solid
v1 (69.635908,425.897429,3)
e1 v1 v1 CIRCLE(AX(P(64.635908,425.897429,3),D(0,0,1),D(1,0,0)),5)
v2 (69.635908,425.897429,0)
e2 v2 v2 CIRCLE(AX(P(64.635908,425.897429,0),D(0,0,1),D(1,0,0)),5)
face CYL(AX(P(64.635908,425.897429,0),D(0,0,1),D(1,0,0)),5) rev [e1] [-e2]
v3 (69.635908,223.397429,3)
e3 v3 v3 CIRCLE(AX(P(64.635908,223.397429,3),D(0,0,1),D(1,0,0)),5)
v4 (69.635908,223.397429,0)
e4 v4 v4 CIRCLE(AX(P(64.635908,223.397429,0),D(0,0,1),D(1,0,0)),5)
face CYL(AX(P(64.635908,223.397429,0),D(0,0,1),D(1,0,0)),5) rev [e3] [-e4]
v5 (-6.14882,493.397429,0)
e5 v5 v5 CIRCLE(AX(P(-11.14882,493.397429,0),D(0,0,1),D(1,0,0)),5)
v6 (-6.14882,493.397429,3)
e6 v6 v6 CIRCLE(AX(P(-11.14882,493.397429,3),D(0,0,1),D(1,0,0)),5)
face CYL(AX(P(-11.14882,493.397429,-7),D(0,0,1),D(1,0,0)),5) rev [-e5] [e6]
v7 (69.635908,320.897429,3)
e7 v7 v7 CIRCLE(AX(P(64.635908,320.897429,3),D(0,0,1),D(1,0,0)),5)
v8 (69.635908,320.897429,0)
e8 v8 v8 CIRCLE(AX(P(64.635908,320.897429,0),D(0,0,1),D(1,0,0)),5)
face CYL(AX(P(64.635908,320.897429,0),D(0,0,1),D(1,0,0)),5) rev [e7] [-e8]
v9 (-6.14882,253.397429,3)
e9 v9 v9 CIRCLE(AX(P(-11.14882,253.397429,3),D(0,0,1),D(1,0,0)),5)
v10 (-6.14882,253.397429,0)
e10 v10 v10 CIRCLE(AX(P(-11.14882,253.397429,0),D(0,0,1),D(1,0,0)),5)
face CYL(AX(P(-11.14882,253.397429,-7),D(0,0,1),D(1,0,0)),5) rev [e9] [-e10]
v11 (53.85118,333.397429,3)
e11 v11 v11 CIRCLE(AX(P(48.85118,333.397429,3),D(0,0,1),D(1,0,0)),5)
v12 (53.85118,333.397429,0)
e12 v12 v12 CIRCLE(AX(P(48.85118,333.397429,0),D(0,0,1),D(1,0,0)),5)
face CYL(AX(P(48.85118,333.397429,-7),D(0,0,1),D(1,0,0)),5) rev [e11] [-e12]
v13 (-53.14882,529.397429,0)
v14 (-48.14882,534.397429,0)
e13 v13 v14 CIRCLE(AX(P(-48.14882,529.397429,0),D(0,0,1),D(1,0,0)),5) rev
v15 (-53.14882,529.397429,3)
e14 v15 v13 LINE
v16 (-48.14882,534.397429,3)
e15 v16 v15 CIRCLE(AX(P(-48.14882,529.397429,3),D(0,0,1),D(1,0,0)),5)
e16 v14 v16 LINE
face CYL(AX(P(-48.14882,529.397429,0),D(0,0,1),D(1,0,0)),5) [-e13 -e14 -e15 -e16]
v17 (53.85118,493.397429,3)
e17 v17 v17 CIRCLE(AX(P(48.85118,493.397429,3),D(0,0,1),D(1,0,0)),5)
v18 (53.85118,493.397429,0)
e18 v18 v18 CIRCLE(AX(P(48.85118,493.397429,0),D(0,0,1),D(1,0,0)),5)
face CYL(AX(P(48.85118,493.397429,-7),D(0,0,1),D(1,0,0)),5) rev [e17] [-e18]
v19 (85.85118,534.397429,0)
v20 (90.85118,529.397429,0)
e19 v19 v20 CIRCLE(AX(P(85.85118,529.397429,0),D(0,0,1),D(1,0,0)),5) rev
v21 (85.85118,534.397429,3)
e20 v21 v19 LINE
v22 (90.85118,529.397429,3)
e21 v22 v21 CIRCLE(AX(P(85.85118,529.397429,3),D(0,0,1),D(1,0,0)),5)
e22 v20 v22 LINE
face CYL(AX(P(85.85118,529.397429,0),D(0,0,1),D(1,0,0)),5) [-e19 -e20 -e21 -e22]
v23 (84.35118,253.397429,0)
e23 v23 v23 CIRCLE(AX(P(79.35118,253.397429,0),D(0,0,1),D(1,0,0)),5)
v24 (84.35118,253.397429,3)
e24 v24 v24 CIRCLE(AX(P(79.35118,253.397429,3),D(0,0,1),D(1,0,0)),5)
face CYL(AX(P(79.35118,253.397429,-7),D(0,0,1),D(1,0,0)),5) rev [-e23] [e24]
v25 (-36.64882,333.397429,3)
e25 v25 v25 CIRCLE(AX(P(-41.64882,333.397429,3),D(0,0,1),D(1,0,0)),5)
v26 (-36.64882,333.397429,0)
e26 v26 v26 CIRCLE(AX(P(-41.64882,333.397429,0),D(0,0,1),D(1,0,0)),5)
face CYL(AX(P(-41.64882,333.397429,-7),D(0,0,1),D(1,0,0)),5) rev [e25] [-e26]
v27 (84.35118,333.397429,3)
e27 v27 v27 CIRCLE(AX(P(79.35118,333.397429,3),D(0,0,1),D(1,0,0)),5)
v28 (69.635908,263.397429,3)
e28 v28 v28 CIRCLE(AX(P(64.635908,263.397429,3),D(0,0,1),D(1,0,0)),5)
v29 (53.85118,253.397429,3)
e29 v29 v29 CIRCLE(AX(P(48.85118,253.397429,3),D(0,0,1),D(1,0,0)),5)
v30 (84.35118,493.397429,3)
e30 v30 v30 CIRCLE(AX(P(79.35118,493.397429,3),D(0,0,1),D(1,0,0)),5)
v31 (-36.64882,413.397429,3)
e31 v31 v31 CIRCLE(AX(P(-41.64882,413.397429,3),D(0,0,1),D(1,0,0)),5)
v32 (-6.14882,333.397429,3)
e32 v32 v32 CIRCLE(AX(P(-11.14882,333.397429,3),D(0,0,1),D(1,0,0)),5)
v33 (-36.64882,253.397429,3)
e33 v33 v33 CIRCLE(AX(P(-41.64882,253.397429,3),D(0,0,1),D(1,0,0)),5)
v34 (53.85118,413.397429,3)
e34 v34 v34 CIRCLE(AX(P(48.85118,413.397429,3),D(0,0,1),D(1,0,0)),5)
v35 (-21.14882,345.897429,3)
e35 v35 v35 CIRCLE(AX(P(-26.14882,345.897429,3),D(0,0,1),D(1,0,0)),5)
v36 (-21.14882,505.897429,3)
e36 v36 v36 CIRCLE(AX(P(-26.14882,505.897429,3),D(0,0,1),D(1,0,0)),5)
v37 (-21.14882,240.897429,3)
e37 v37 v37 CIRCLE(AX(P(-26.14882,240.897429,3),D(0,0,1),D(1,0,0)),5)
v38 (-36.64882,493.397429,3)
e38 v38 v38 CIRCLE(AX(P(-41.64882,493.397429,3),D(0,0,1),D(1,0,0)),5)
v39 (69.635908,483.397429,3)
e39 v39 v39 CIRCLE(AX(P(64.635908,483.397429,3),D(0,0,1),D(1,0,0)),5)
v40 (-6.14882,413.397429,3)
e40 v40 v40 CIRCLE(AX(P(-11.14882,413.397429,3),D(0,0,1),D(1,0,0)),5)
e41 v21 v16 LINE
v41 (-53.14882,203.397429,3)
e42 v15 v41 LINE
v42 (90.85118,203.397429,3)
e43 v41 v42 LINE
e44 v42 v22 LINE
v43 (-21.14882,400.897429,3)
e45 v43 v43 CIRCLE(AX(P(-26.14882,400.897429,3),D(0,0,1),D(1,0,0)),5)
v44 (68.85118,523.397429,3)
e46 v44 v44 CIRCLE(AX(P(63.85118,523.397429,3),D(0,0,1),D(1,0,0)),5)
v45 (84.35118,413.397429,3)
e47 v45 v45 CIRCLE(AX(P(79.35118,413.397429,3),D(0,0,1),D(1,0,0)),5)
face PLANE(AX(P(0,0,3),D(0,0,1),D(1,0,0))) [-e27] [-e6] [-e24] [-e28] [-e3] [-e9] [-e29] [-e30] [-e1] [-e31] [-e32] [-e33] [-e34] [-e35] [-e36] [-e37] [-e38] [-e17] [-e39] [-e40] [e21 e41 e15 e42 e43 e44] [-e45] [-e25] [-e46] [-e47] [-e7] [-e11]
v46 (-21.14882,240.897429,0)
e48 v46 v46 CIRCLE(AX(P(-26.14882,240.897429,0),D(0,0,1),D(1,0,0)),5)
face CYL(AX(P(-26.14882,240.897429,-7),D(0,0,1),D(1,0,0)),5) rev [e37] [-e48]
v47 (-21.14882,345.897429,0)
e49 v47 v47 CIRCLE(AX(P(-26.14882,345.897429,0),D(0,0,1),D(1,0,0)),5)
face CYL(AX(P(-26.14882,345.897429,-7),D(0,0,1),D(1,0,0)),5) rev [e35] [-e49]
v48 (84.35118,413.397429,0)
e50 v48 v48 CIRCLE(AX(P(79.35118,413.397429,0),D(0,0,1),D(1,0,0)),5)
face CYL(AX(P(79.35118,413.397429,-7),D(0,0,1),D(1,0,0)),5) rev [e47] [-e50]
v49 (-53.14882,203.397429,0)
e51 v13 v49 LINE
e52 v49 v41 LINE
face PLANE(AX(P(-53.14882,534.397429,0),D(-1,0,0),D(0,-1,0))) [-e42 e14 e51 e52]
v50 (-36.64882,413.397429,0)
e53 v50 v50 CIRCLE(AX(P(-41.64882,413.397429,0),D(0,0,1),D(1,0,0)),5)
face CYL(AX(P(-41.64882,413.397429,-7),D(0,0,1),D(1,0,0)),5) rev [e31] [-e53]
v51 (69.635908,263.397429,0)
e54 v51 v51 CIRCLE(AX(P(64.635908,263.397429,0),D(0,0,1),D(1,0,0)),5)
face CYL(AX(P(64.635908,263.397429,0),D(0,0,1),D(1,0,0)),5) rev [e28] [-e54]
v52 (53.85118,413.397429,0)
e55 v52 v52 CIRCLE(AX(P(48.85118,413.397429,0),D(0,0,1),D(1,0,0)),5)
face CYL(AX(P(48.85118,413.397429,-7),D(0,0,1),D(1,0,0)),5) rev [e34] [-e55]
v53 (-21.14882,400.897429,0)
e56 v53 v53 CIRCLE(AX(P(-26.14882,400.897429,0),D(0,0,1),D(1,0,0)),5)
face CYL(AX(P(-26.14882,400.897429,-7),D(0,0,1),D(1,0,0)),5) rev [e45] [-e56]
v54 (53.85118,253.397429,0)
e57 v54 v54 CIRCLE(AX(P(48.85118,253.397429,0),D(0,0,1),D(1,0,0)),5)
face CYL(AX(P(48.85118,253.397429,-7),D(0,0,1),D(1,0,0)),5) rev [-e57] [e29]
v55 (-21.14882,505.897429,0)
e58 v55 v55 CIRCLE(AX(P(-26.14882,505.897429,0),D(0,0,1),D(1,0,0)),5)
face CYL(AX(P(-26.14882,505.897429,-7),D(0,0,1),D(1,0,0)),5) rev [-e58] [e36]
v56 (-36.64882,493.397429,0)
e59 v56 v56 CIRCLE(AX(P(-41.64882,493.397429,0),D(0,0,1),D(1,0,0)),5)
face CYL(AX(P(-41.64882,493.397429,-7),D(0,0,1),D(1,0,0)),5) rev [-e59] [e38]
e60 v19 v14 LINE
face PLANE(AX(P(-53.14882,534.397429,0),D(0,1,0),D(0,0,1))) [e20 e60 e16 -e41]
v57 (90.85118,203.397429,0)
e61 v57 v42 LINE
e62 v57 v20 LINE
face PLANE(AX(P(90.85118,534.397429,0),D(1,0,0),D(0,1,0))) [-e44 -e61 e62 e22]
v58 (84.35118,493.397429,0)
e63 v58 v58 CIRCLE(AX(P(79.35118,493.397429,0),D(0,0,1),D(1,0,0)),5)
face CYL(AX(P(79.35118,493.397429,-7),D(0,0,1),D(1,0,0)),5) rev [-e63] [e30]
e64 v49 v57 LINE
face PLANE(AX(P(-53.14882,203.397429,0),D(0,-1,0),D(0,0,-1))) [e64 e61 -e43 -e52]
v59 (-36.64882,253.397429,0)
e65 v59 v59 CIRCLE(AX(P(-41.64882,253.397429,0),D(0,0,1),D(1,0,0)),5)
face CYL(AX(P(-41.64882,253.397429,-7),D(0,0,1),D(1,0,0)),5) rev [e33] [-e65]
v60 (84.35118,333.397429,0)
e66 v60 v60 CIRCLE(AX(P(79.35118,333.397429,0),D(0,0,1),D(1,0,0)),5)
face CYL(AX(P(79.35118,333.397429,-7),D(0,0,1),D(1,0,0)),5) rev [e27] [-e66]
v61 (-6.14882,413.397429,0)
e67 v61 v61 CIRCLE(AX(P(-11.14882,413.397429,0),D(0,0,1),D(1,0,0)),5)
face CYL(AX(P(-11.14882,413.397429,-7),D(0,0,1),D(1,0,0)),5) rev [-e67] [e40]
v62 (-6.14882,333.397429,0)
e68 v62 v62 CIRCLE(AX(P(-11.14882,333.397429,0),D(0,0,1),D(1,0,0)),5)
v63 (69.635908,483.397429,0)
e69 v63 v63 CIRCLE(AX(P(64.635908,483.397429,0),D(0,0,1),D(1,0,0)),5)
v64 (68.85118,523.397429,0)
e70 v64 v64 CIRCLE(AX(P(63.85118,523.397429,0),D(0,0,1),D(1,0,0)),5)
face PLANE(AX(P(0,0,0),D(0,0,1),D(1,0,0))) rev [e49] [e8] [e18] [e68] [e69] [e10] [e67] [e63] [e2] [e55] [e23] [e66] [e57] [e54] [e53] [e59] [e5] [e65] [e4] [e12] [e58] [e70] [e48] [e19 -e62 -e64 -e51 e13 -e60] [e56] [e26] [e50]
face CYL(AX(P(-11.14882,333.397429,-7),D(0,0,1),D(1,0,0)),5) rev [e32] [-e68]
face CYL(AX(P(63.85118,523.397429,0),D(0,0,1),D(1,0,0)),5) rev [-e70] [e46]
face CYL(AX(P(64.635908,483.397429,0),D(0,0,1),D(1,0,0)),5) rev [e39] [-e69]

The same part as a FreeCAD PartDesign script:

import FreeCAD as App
import Part
import Sketcher

V = App.Vector


def edges_at(feature, points):
    """Names of the edges that pass closest to the given points."""
    edges = feature.Shape.Edges
    near = lambda p: min(range(len(edges)), key=lambda i: edges[i].distToShape(Part.Vertex(*p))[0])
    return sorted({f"Edge{near(p) + 1}" for p in points})

doc = App.newDocument("Part")
body = doc.addObject("PartDesign::Body", "Body")

sketch1 = body.newObject("Sketcher::SketchObject", "Sketch")
sketch1.AttachmentSupport = (doc.getObject("XY_Plane"), [""])
sketch1.MapMode = "FlatFace"
sketch1.AttachmentOffset = App.Placement(V(0, 0, 3), App.Rotation())
sketch1.addGeometry(Part.LineSegment(V(-53, 534, 0), V(-53, 203, 0)), False)
sketch1.addGeometry(Part.LineSegment(V(-53, 203, 0), V(91, 203, 0)), False)
sketch1.addGeometry(Part.LineSegment(V(91, 203, 0), V(91, 534, 0)), False)
sketch1.addGeometry(Part.LineSegment(V(91, 534, 0), V(-53, 534, 0)), False)
sketch1.addConstraint(Sketcher.Constraint("Coincident", 0, 2, 1, 1))
sketch1.addConstraint(Sketcher.Constraint("Coincident", 1, 2, 2, 1))
sketch1.addConstraint(Sketcher.Constraint("Coincident", 2, 2, 3, 1))
sketch1.addConstraint(Sketcher.Constraint("Coincident", 3, 2, 0, 1))
sketch1.addConstraint(Sketcher.Constraint("Vertical", 0))
sketch1.addConstraint(Sketcher.Constraint("Horizontal", 1))
sketch1.addConstraint(Sketcher.Constraint("Vertical", 2))
sketch1.addConstraint(Sketcher.Constraint("Horizontal", 3))
sketch1.addConstraint(Sketcher.Constraint("DistanceX", 1, 1, 1, 2, 144.0))
sketch1.addConstraint(Sketcher.Constraint("DistanceY", 0, 2, 0, 1, 331.0))
sketch1.addConstraint(Sketcher.Constraint("DistanceX", 0, 2, -1, 1, 53.14882))
sketch1.addConstraint(Sketcher.Constraint("DistanceY", -1, 1, 0, 2, 203.397429))
pad1 = body.newObject("PartDesign::Pad", "Pad")
pad1.Profile = sketch1
pad1.Length = 3
pad1.Reversed = True

sketch2 = body.newObject("Sketcher::SketchObject", "Sketch001")
sketch2.AttachmentSupport = (doc.getObject("XY_Plane"), [""])
sketch2.MapMode = "FlatFace"
sketch2.AttachmentOffset = App.Placement(V(0, 0, 3), App.Rotation())
sketch2.addGeometry(Part.Circle(V(64, 523, 0), V(0, 0, 1), 5), False)
sketch2.addGeometry(Part.Circle(V(65, 483, 0), V(0, 0, 1), 5), False)
sketch2.addGeometry(Part.Circle(V(65, 426, 0), V(0, 0, 1), 5), False)
sketch2.addGeometry(Part.Circle(V(65, 321, 0), V(0, 0, 1), 5), False)
sketch2.addGeometry(Part.Circle(V(65, 263, 0), V(0, 0, 1), 5), False)
sketch2.addGeometry(Part.Circle(V(65, 223, 0), V(0, 0, 1), 5), False)
sketch2.addConstraint(Sketcher.Constraint("Equal", 0, 1))
sketch2.addConstraint(Sketcher.Constraint("Equal", 1, 2))
sketch2.addConstraint(Sketcher.Constraint("Equal", 2, 3))
sketch2.addConstraint(Sketcher.Constraint("Equal", 3, 4))
sketch2.addConstraint(Sketcher.Constraint("Equal", 4, 5))
sketch2.addConstraint(Sketcher.Constraint("Vertical", 1, 3, 2, 3))
sketch2.addConstraint(Sketcher.Constraint("Vertical", 2, 3, 3, 3))
sketch2.addConstraint(Sketcher.Constraint("Vertical", 3, 3, 4, 3))
sketch2.addConstraint(Sketcher.Constraint("Vertical", 4, 3, 5, 3))
sketch2.addConstraint(Sketcher.Constraint("Diameter", 0, 10.0))
sketch2.addConstraint(Sketcher.Constraint("DistanceY", 1, 3, 0, 3, 40.0))
sketch2.addConstraint(Sketcher.Constraint("DistanceY", 3, 3, 2, 3, 105.0))
sketch2.addConstraint(Sketcher.Constraint("DistanceY", 4, 3, 1, 3, 220.0))
sketch2.addConstraint(Sketcher.Constraint("DistanceY", 5, 3, 4, 3, 40.0))
sketch2.addConstraint(Sketcher.Constraint("DistanceY", 2, 3, 1, 3, 57.5))
sketch2.addConstraint(Sketcher.Constraint("DistanceX", -1, 1, 0, 3, 63.85118))
sketch2.addConstraint(Sketcher.Constraint("DistanceY", -1, 1, 0, 3, 523.397429))
sketch2.addConstraint(Sketcher.Constraint("DistanceX", -1, 1, 1, 3, 64.635908))
pocket1 = body.newObject("PartDesign::Pocket", "Pocket")
pocket1.Profile = sketch2
pocket1.Type = "ThroughAll"

sketch3 = body.newObject("Sketcher::SketchObject", "Sketch002")
sketch3.AttachmentSupport = (doc.getObject("XY_Plane"), [""])
sketch3.MapMode = "FlatFace"
sketch3.AttachmentOffset = App.Placement(V(0, 0, 3), App.Rotation())
sketch3.addGeometry(Part.Circle(V(-26, 506, 0), V(0, 0, 1), 5), False)
sketch3.addGeometry(Part.Circle(V(-26, 401, 0), V(0, 0, 1), 5), False)
sketch3.addGeometry(Part.Circle(V(-26, 346, 0), V(0, 0, 1), 5), False)
sketch3.addGeometry(Part.Circle(V(-26, 241, 0), V(0, 0, 1), 5), False)
sketch3.addConstraint(Sketcher.Constraint("Equal", 0, 1))
sketch3.addConstraint(Sketcher.Constraint("Equal", 1, 2))
sketch3.addConstraint(Sketcher.Constraint("Equal", 2, 3))
sketch3.addConstraint(Sketcher.Constraint("Vertical", 0, 3, 1, 3))
sketch3.addConstraint(Sketcher.Constraint("Vertical", 1, 3, 2, 3))
sketch3.addConstraint(Sketcher.Constraint("Vertical", 2, 3, 3, 3))
sketch3.addConstraint(Sketcher.Constraint("Diameter", 0, 10.0))
sketch3.addConstraint(Sketcher.Constraint("DistanceY", 1, 3, 0, 3, 105.0))
sketch3.addConstraint(Sketcher.Constraint("DistanceY", 2, 3, 1, 3, 55.0))
sketch3.addConstraint(Sketcher.Constraint("DistanceY", 3, 3, 2, 3, 105.0))
sketch3.addConstraint(Sketcher.Constraint("DistanceX", 0, 3, -1, 1, 26.14882))
sketch3.addConstraint(Sketcher.Constraint("DistanceY", -1, 1, 0, 3, 505.897429))
pocket2 = body.newObject("PartDesign::Pocket", "Pocket001")
pocket2.Profile = sketch3
pocket2.Length = 10

sketch4 = body.newObject("Sketcher::SketchObject", "Sketch003")
sketch4.AttachmentSupport = (doc.getObject("XY_Plane"), [""])
sketch4.MapMode = "FlatFace"
sketch4.AttachmentOffset = App.Placement(V(0, 0, 3), App.Rotation())
sketch4.addGeometry(Part.Circle(V(-42, 253, 0), V(0, 0, 1), 5), False)
sketch4.addGeometry(Part.Circle(V(-11, 253, 0), V(0, 0, 1), 5), False)
sketch4.addGeometry(Part.Circle(V(49, 253, 0), V(0, 0, 1), 5), False)
sketch4.addGeometry(Part.Circle(V(79, 253, 0), V(0, 0, 1), 5), False)
sketch4.addConstraint(Sketcher.Constraint("Equal", 0, 1))
sketch4.addConstraint(Sketcher.Constraint("Equal", 1, 2))
sketch4.addConstraint(Sketcher.Constraint("Equal", 2, 3))
sketch4.addConstraint(Sketcher.Constraint("Horizontal", 0, 3, 1, 3))
sketch4.addConstraint(Sketcher.Constraint("Horizontal", 1, 3, 2, 3))
sketch4.addConstraint(Sketcher.Constraint("Horizontal", 2, 3, 3, 3))
sketch4.addConstraint(Sketcher.Constraint("Diameter", 0, 10.0))
sketch4.addConstraint(Sketcher.Constraint("DistanceX", 1, 3, 2, 3, 60.0))
sketch4.addConstraint(Sketcher.Constraint("DistanceX", 0, 3, 3, 3, 121.0))
sketch4.addConstraint(Sketcher.Constraint("DistanceX", 0, 3, 1, 3, 30.5))
sketch4.addConstraint(Sketcher.Constraint("DistanceX", 0, 3, -1, 1, 41.64882))
sketch4.addConstraint(Sketcher.Constraint("DistanceY", -1, 1, 0, 3, 253.397429))
pocket3 = body.newObject("PartDesign::Pocket", "Pocket002")
pocket3.Profile = sketch4
pocket3.Length = 10
doc.recompute()

linearpattern = body.newObject("PartDesign::LinearPattern", "LinearPattern")
linearpattern.Originals = [pocket3]
linearpattern.Direction = (doc.getObject("Y_Axis"), [""])
linearpattern.Mode = "offset"
linearpattern.Offset = 80
linearpattern.Occurrences = 4
body.Tip = linearpattern
doc.recompute()

fillet = body.newObject("PartDesign::Fillet", "Fillet")
fillet.Base = (linearpattern, edges_at(linearpattern, [(-53.149, 534.397, 1.5), (90.851, 534.397, 1.5)]))
fillet.Radius = 5

doc.recompute()
